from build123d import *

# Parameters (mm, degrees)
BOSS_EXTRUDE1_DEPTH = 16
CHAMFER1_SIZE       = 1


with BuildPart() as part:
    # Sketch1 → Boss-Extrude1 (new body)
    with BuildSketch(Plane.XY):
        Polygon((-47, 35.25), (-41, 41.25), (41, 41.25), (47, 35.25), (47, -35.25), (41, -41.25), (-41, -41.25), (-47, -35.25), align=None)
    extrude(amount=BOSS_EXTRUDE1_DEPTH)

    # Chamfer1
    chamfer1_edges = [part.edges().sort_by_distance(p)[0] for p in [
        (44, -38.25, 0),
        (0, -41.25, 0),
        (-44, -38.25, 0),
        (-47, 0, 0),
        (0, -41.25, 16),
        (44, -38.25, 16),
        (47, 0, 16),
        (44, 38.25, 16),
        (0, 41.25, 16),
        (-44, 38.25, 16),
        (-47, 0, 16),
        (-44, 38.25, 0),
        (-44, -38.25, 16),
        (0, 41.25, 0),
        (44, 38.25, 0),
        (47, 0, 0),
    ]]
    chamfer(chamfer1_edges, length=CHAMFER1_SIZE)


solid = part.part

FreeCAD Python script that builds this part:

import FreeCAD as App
import Part
import Sketcher


def edges_at(feature, points):
    """Names of the edges that pass closest to the given points."""
    edges = feature.Shape.Edges
    near = lambda p: min(range(len(edges)), key=lambda i: edges[i].distToShape(Part.Vertex(*p))[0])
    return sorted({f"Edge{near(p) + 1}" for p in points})

doc = App.newDocument("Part")
body = doc.addObject("PartDesign::Body", "Body")

# Sketch on XY plane
sketch1 = body.newObject("Sketcher::SketchObject", "Sketch")
sketch1.AttachmentSupport = (doc.getObject("XY_Plane"), [""])
sketch1.MapMode = "FlatFace"
sketch1.addGeometry(Part.LineSegment(App.Vector(-41, 41, 0), App.Vector(-47, 35, 0)), False)
sketch1.addGeometry(Part.LineSegment(App.Vector(-47, 35, 0), App.Vector(-47, -35, 0)), False)
sketch1.addGeometry(Part.LineSegment(App.Vector(-47, -35, 0), App.Vector(-41, -41, 0)), False)
sketch1.addGeometry(Part.LineSegment(App.Vector(-41, -41, 0), App.Vector(41, -41, 0)), False)
sketch1.addGeometry(Part.LineSegment(App.Vector(41, -41, 0), App.Vector(47, -35, 0)), False)
sketch1.addGeometry(Part.LineSegment(App.Vector(47, -35, 0), App.Vector(47, 35, 0)), False)
sketch1.addGeometry(Part.LineSegment(App.Vector(47, 35, 0), App.Vector(41, 41, 0)), False)
sketch1.addGeometry(Part.LineSegment(App.Vector(41, 41, 0), App.Vector(-41, 41, 0)), False)
sketch1.addConstraint(Sketcher.Constraint("Coincident", 0, 2, 1, 1))
sketch1.addConstraint(Sketcher.Constraint("Coincident", 1, 2, 2, 1))
sketch1.addConstraint(Sketcher.Constraint("Coincident", 2, 2, 3, 1))
sketch1.addConstraint(Sketcher.Constraint("Coincident", 3, 2, 4, 1))
sketch1.addConstraint(Sketcher.Constraint("Coincident", 4, 2, 5, 1))
sketch1.addConstraint(Sketcher.Constraint("Coincident", 5, 2, 6, 1))
sketch1.addConstraint(Sketcher.Constraint("Coincident", 6, 2, 7, 1))
sketch1.addConstraint(Sketcher.Constraint("Coincident", 7, 2, 0, 1))
sketch1.addConstraint(Sketcher.Constraint("Vertical", 1))
sketch1.addConstraint(Sketcher.Constraint("Horizontal", 3))
sketch1.addConstraint(Sketcher.Constraint("Vertical", 5))
sketch1.addConstraint(Sketcher.Constraint("Horizontal", 7))
sketch1.addConstraint(Sketcher.Constraint("Symmetric", 0, 2, 4, 2, -1, 1))
sketch1.addConstraint(Sketcher.Constraint("Symmetric", 2, 2, 6, 2, -1, 1))
sketch1.addConstraint(Sketcher.Constraint("Perpendicular", 0, 2))
sketch1.addConstraint(Sketcher.Constraint("Perpendicular", 2, 4))
sketch1.addConstraint(Sketcher.Constraint("Perpendicular", 4, 6))
sketch1.addConstraint(Sketcher.Constraint("Horizontal", 1, 2, 4, 2))
sketch1.addConstraint(Sketcher.Constraint("Vertical", 3, 2, 6, 2))
sketch1.addConstraint(Sketcher.Constraint("DistanceX", 3, 1, 3, 2, 82.0))
sketch1.addConstraint(Sketcher.Constraint("DistanceY", 1, 2, 1, 1, 70.5))
sketch1.addConstraint(Sketcher.Constraint("DistanceX", 0, 2, -1, 1, 47.0))
pad1 = body.newObject("PartDesign::Pad", "Pad")
pad1.Profile = sketch1
pad1.Length = 16
doc.recompute()

chamfer = body.newObject("PartDesign::Chamfer", "Chamfer")
chamfer.Base = (pad1, edges_at(pad1, [
    (44, -38.25, 0),
    (0, -41.25, 0),
    (-44, -38.25, 0),
    (-47, 0, 0),
    (0, -41.25, 16),
    (44, -38.25, 16),
    (47, 0, 16),
    (44, 38.25, 16),
    (0, 41.25, 16),
    (-44, 38.25, 16),
    (-47, 0, 16),
    (-44, 38.25, 0),
    (-44, -38.25, 16),
    (0, 41.25, 0),
    (44, 38.25, 0),
    (47, 0, 0),
]))
chamfer.Size = 1

doc.recompute()
